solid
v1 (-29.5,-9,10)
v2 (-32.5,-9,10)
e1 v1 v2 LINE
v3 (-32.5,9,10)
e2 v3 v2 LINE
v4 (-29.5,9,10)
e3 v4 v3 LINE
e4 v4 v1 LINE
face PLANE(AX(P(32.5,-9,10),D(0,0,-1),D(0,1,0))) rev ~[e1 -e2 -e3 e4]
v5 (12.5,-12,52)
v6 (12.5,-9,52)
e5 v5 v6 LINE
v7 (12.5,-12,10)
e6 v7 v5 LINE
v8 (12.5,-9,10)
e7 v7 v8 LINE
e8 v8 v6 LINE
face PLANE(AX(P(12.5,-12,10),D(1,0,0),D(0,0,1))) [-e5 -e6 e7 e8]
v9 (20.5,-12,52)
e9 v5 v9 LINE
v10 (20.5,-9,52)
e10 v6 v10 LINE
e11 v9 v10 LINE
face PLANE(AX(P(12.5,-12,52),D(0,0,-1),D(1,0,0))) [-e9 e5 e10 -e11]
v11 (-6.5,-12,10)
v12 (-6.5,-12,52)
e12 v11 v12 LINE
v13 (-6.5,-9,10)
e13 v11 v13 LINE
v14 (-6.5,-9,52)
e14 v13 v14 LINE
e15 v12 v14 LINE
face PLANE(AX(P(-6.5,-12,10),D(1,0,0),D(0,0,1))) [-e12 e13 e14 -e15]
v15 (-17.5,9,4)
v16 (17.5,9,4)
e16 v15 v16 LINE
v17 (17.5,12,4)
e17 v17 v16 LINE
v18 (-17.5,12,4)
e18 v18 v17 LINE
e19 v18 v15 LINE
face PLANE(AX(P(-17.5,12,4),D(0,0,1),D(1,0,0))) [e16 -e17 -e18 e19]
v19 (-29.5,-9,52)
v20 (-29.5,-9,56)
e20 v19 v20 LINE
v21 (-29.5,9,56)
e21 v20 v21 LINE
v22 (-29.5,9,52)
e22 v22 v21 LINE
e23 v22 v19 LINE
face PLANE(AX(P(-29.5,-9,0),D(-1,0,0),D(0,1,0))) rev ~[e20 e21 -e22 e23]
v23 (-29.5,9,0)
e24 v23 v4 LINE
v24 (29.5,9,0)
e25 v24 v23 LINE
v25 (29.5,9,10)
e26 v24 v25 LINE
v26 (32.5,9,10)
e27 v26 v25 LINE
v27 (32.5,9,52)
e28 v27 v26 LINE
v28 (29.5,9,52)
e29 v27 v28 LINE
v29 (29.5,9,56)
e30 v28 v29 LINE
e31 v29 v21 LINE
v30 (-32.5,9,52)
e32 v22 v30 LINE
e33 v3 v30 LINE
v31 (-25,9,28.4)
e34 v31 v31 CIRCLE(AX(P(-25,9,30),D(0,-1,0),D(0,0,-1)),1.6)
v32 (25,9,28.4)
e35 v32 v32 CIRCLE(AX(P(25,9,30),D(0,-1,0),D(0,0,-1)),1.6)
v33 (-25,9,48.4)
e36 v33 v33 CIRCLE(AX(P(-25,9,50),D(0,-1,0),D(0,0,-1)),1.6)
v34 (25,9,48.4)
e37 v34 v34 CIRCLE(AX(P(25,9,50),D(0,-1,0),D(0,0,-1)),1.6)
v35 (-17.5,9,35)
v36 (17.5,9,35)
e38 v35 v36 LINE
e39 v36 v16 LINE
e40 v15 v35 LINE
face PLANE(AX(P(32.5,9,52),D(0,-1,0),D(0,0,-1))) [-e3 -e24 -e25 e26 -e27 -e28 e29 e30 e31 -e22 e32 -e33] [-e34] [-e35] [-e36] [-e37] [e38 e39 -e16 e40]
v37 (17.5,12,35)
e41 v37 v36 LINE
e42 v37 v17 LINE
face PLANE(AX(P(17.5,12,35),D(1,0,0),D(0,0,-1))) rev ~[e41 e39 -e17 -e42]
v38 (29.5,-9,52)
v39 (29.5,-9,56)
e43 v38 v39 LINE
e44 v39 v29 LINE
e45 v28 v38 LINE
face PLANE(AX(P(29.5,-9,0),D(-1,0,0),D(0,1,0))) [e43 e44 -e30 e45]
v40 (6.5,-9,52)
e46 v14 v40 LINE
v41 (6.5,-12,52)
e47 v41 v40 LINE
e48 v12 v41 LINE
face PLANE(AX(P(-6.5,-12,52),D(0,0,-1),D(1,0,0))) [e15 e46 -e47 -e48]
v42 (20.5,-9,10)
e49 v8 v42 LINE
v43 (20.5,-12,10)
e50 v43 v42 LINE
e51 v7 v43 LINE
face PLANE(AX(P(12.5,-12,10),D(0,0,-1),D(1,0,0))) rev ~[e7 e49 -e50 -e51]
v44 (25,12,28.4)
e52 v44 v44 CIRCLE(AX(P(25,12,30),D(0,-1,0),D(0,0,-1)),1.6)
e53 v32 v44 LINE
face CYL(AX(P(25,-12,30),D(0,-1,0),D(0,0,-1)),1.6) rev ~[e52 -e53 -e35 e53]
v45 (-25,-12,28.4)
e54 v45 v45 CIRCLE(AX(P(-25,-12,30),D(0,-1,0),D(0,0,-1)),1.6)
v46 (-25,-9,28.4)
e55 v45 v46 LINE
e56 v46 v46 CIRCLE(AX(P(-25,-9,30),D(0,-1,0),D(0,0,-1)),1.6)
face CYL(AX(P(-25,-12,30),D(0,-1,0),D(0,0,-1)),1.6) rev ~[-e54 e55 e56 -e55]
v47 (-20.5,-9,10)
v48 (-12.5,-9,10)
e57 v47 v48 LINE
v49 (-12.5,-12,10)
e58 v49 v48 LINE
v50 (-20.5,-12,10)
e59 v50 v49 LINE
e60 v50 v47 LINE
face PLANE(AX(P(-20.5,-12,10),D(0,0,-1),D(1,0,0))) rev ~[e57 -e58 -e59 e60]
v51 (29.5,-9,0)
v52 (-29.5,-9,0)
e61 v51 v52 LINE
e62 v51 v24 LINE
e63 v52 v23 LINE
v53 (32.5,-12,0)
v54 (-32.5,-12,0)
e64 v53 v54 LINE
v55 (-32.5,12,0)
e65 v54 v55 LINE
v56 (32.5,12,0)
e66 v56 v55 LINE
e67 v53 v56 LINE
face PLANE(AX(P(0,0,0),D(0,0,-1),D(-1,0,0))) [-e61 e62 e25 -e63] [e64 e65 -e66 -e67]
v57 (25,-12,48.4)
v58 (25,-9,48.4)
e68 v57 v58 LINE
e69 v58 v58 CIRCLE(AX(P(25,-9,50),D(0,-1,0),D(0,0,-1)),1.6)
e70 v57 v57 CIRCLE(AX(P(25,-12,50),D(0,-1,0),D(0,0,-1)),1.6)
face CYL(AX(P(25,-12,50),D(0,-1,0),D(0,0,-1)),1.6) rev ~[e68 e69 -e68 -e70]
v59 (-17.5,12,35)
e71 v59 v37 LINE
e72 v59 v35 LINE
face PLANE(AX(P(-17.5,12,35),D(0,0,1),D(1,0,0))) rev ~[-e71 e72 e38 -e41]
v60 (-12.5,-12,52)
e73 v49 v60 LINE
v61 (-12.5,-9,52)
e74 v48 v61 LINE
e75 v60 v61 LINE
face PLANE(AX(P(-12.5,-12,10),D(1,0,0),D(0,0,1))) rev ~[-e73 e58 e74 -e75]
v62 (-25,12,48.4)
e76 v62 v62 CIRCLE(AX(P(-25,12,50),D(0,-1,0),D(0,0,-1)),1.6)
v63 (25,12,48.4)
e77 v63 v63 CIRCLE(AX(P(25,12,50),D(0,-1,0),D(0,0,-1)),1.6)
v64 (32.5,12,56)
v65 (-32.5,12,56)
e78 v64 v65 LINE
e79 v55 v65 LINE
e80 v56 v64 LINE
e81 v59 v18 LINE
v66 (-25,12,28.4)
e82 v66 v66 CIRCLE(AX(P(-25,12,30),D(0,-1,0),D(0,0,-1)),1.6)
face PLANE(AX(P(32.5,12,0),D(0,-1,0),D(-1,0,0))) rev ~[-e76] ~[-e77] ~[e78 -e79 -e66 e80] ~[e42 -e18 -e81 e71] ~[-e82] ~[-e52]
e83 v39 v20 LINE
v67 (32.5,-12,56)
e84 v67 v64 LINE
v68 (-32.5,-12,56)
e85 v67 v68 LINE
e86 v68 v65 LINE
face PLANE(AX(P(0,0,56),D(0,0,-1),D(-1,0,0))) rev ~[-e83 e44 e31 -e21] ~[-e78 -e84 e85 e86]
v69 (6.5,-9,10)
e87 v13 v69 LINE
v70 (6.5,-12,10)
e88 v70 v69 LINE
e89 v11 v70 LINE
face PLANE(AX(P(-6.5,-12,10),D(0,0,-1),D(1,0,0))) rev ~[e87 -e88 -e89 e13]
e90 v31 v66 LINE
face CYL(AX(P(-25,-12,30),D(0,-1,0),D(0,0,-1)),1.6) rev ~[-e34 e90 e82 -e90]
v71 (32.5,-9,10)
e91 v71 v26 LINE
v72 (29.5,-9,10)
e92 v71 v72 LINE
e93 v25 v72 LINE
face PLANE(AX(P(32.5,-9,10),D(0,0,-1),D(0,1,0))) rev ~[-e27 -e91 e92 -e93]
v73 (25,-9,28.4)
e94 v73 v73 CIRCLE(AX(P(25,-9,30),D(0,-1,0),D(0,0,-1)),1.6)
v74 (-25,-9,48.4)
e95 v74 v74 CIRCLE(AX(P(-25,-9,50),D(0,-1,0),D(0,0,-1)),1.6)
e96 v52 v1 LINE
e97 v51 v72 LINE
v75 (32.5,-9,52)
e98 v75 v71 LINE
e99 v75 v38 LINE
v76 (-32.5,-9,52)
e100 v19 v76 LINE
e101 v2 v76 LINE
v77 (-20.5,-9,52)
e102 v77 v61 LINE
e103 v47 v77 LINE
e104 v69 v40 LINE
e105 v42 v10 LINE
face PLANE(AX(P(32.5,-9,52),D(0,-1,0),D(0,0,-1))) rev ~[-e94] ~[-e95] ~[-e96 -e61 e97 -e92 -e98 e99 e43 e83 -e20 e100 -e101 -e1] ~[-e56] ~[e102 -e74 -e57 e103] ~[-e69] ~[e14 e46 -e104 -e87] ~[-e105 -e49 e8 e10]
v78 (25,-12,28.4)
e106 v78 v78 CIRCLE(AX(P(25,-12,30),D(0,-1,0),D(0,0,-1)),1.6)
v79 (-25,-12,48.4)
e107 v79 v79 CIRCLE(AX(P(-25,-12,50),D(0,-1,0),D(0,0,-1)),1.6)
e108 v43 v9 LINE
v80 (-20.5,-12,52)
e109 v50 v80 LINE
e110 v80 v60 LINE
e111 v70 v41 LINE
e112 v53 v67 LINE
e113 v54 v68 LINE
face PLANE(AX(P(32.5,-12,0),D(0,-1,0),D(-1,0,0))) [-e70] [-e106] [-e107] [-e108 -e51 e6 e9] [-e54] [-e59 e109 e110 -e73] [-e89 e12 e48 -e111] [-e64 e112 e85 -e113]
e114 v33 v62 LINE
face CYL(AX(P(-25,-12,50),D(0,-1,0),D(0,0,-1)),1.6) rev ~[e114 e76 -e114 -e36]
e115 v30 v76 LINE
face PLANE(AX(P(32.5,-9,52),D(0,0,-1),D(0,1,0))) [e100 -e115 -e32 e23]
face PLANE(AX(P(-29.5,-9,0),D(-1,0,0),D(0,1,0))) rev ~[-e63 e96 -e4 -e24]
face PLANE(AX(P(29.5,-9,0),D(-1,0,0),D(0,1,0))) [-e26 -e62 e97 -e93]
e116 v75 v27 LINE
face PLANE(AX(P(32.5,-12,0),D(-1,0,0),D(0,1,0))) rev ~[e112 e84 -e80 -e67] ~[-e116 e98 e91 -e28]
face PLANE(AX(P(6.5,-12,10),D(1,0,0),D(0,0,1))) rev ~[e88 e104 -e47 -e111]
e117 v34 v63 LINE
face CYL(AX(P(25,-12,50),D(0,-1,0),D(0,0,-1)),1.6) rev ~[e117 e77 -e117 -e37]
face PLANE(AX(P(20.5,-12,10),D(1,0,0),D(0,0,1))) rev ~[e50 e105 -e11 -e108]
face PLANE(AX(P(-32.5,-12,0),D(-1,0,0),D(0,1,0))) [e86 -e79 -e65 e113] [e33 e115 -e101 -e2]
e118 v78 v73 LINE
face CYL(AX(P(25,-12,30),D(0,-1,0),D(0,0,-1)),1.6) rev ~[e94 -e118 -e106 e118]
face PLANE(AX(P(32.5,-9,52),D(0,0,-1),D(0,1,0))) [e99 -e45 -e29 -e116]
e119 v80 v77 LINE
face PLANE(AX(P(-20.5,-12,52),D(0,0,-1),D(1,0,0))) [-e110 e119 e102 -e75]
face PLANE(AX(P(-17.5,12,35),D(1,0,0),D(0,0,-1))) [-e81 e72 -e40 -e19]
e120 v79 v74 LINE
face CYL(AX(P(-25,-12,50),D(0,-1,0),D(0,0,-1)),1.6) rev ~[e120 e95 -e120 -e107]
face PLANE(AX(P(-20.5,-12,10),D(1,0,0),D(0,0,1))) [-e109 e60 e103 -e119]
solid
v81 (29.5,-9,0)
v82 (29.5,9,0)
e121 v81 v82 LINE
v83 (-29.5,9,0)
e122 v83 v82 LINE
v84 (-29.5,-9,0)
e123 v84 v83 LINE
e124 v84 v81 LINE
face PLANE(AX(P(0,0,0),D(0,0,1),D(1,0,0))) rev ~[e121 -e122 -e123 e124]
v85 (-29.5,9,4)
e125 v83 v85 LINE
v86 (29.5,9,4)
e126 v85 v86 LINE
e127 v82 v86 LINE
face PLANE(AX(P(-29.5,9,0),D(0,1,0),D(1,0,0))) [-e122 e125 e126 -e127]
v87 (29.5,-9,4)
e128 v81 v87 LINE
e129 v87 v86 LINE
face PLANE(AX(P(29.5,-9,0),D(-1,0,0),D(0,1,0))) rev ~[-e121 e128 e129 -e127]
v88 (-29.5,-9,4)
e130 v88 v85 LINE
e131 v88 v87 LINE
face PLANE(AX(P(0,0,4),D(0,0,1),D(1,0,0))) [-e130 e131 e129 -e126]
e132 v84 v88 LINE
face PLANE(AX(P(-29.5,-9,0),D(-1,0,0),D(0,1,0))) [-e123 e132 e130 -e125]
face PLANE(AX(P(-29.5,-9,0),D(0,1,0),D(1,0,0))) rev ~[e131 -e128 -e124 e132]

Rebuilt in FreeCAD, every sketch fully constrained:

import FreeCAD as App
import Part
import Sketcher
from FreeCAD import Vector

doc = App.newDocument("Part")
body = doc.addObject("PartDesign::Body", "Body")

# Sketch on XY plane
sketch1 = body.newObject("Sketcher::SketchObject", "Sketch")
sketch1.AttachmentSupport = (doc.getObject("XY_Plane"), [""])
sketch1.MapMode = "FlatFace"
sketch1.addGeometry([
    Part.LineSegment(Vector(-30, 9, 0), Vector(-30, -9, 0)),
    Part.LineSegment(Vector(-30, -9, 0), Vector(30, -9, 0)),
    Part.LineSegment(Vector(30, -9, 0), Vector(30, 9, 0)),
    Part.LineSegment(Vector(30, 9, 0), Vector(-30, 9, 0)),
], False)
sketch1.addConstraint([
    Sketcher.Constraint("Coincident", 0, 2, 1, 1),
    Sketcher.Constraint("Coincident", 1, 2, 2, 1),
    Sketcher.Constraint("Coincident", 2, 2, 3, 1),
    Sketcher.Constraint("Coincident", 3, 2, 0, 1),
    Sketcher.Constraint("Vertical", 0),
    Sketcher.Constraint("Horizontal", 1),
    Sketcher.Constraint("Vertical", 2),
    Sketcher.Constraint("Horizontal", 3),
    Sketcher.Constraint("Symmetric", 0, 2, 2, 2, -1, 1),
    Sketcher.Constraint("DistanceX", 1, 1, 1, 2, 59.0),
    Sketcher.Constraint("DistanceY", 0, 2, 0, 1, 18.0),
])
pad1 = body.newObject("PartDesign::Pad", "Pad")
pad1.Profile = sketch1
pad1.Length = 4
body2 = doc.addObject("PartDesign::Body", "Body001")

# Sketch on XY plane
sketch2 = body2.newObject("Sketcher::SketchObject", "Sketch001")
sketch2.AttachmentSupport = (doc.getObject("XY_Plane001"), [""])
sketch2.MapMode = "FlatFace"
sketch2.addGeometry([
    Part.LineSegment(Vector(32, 12, 0), Vector(32, -12, 0)),  # 0
    Part.LineSegment(Vector(32, -12, 0), Vector(-32, -12, 0)),  # 1
    Part.LineSegment(Vector(-32, -12, 0), Vector(-32, 12, 0)),  # 2
    Part.LineSegment(Vector(-32, 12, 0), Vector(32, 12, 0)),  # 3
    Part.LineSegment(Vector(-30, -9, 0), Vector(30, -9, 0)),  # 4
    Part.LineSegment(Vector(30, -9, 0), Vector(30, 9, 0)),  # 5
    Part.LineSegment(Vector(30, 9, 0), Vector(-30, 9, 0)),  # 6
    Part.LineSegment(Vector(-30, 9, 0), Vector(-30, -9, 0)),  # 7
], False)
sketch2.addConstraint([
    Sketcher.Constraint("Coincident", 0, 2, 1, 1),
    Sketcher.Constraint("Coincident", 1, 2, 2, 1),
    Sketcher.Constraint("Coincident", 2, 2, 3, 1),
    Sketcher.Constraint("Coincident", 3, 2, 0, 1),
    Sketcher.Constraint("Coincident", 4, 2, 5, 1),
    Sketcher.Constraint("Coincident", 5, 2, 6, 1),
    Sketcher.Constraint("Coincident", 6, 2, 7, 1),
    Sketcher.Constraint("Coincident", 7, 2, 4, 1),
    Sketcher.Constraint("Vertical", 0),
    Sketcher.Constraint("Horizontal", 1),
    Sketcher.Constraint("Vertical", 2),
    Sketcher.Constraint("Horizontal", 3),
    Sketcher.Constraint("Horizontal", 4),
    Sketcher.Constraint("Vertical", 5),
    Sketcher.Constraint("Horizontal", 6),
    Sketcher.Constraint("Vertical", 7),
    Sketcher.Constraint("Symmetric", 0, 2, 2, 2, -1, 1),
    Sketcher.Constraint("Symmetric", 4, 2, 6, 2, -1, 1),
    Sketcher.Constraint("DistanceX", 1, 2, 1, 1, 65.0),
    Sketcher.Constraint("DistanceX", 4, 1, 4, 2, 59.0),
    Sketcher.Constraint("DistanceY", 0, 2, 0, 1, 24.0),
    Sketcher.Constraint("DistanceY", 5, 1, 5, 2, 18.0),
])
pad2 = body2.newObject("PartDesign::Pad", "Pad001")
pad2.Profile = sketch2
pad2.Length = 56

# Sketch on XZ plane
sketch3 = body2.newObject("Sketcher::SketchObject", "Sketch002")
sketch3.AttachmentSupport = (doc.getObject("XZ_Plane001"), [""])
sketch3.MapMode = "FlatFace"
sketch3.AttachmentOffset = App.Placement(Vector(0, 0, -12), App.Rotation())
sketch3.addGeometry([
    Part.LineSegment(Vector(-18, 4, 0), Vector(-18, 35, 0)),
    Part.LineSegment(Vector(-18, 35, 0), Vector(18, 35, 0)),
    Part.LineSegment(Vector(18, 35, 0), Vector(18, 4, 0)),
    Part.LineSegment(Vector(18, 4, 0), Vector(-18, 4, 0)),
], False)
sketch3.addConstraint([
    Sketcher.Constraint("Coincident", 0, 2, 1, 1),
    Sketcher.Constraint("Coincident", 1, 2, 2, 1),
    Sketcher.Constraint("Coincident", 2, 2, 3, 1),
    Sketcher.Constraint("Coincident", 3, 2, 0, 1),
    Sketcher.Constraint("Vertical", 0),
    Sketcher.Constraint("Horizontal", 1),
    Sketcher.Constraint("Vertical", 2),
    Sketcher.Constraint("Horizontal", 3),
    Sketcher.Constraint("DistanceX", 1, 1, 1, 2, 35.0),
    Sketcher.Constraint("DistanceY", 0, 1, 0, 2, 31.0),
    Sketcher.Constraint("DistanceY", -1, 1, 0, 2, 35.0),
    Sketcher.Constraint("DistanceX", 0, 2, -1, 1, 17.5),
])
pocket1 = body2.newObject("PartDesign::Pocket", "Pocket")
pocket1.Profile = sketch3
pocket1.Length = 3
pocket1.Reversed = True

# Sketch on XZ plane
sketch4 = body2.newObject("Sketcher::SketchObject", "Sketch003")
sketch4.AttachmentSupport = (doc.getObject("XZ_Plane001"), [""])
sketch4.MapMode = "FlatFace"
sketch4.AttachmentOffset = App.Placement(Vector(0, 0, 12), App.Rotation())
sketch4.addGeometry([
    Part.Circle(Vector(25, 50, 0), Vector(0, 0, 1), 1.6),
    Part.Circle(Vector(25, 30, 0), Vector(0, 0, 1), 1.6),
    Part.Circle(Vector(-25, 30, 0), Vector(0, 0, 1), 1.6),
    Part.Circle(Vector(-25, 50, 0), Vector(0, 0, 1), 1.6),
], False)
sketch4.addConstraint([
    Sketcher.Constraint("Equal", 0, 1),
    Sketcher.Constraint("Equal", 1, 2),
    Sketcher.Constraint("Equal", 2, 3),
    Sketcher.Constraint("Symmetric", 1, 3, 2, 3, -2),
    Sketcher.Constraint("Symmetric", 0, 3, 3, 3, -2),
    Sketcher.Constraint("Vertical", 0, 3, 1, 3),
    Sketcher.Constraint("Diameter", 0, 3.2),
    Sketcher.Constraint("DistanceX", -1, 1, 0, 3, 25.0),
    Sketcher.Constraint("DistanceY", -1, 1, 0, 3, 50.0),
    Sketcher.Constraint("DistanceY", -1, 1, 1, 3, 30.0),
])
pocket2 = body2.newObject("PartDesign::Pocket", "Pocket001")
pocket2.Profile = sketch4
pocket2.Type = "ThroughAll"

# Sketch on YZ plane
sketch5 = body2.newObject("Sketcher::SketchObject", "Sketch004")
sketch5.AttachmentSupport = (doc.getObject("YZ_Plane001"), [""])
sketch5.MapMode = "FlatFace"
sketch5.AttachmentOffset = App.Placement(Vector(0, 0, 32.5), App.Rotation())
sketch5.addGeometry([
    Part.LineSegment(Vector(9, 52, 0), Vector(-9, 52, 0)),
    Part.LineSegment(Vector(-9, 52, 0), Vector(-9, 10, 0)),
    Part.LineSegment(Vector(-9, 10, 0), Vector(9, 10, 0)),
    Part.LineSegment(Vector(9, 10, 0), Vector(9, 52, 0)),
], False)
sketch5.addConstraint([
    Sketcher.Constraint("Coincident", 0, 2, 1, 1),
    Sketcher.Constraint("Coincident", 1, 2, 2, 1),
    Sketcher.Constraint("Coincident", 2, 2, 3, 1),
    Sketcher.Constraint("Coincident", 3, 2, 0, 1),
    Sketcher.Constraint("Horizontal", 0),
    Sketcher.Constraint("Vertical", 1),
    Sketcher.Constraint("Horizontal", 2),
    Sketcher.Constraint("Vertical", 3),
    Sketcher.Constraint("DistanceX", 0, 2, 0, 1, 18.0),
    Sketcher.Constraint("DistanceY", 1, 2, 1, 1, 42.0),
    Sketcher.Constraint("DistanceX", 0, 2, -1, 1, 9.0),
    Sketcher.Constraint("DistanceY", -1, 1, 0, 2, 52.0),
])
pocket3 = body2.newObject("PartDesign::Pocket", "Pocket002")
pocket3.Profile = sketch5
pocket3.Type = "ThroughAll"

# Sketch on XZ plane
sketch6 = body2.newObject("Sketcher::SketchObject", "Sketch005")
sketch6.AttachmentSupport = (doc.getObject("XZ_Plane001"), [""])
sketch6.MapMode = "FlatFace"
sketch6.AttachmentOffset = App.Placement(Vector(0, 0, 12), App.Rotation())
sketch6.addGeometry([
    Part.LineSegment(Vector(-6, 52, 0), Vector(-6, 10, 0)),  # 0
    Part.LineSegment(Vector(-6, 10, 0), Vector(6, 10, 0)),  # 1
    Part.LineSegment(Vector(6, 10, 0), Vector(6, 52, 0)),  # 2
    Part.LineSegment(Vector(6, 52, 0), Vector(-6, 52, 0)),  # 3
    Part.LineSegment(Vector(12, 52, 0), Vector(12, 10, 0)),  # 4
    Part.LineSegment(Vector(12, 10, 0), Vector(20, 10, 0)),  # 5
    Part.LineSegment(Vector(20, 10, 0), Vector(20, 52, 0)),  # 6
    Part.LineSegment(Vector(20, 52, 0), Vector(12, 52, 0)),  # 7
    Part.LineSegment(Vector(-20, 52, 0), Vector(-20, 10, 0)),  # 8
    Part.LineSegment(Vector(-20, 10, 0), Vector(-12, 10, 0)),  # 9
    Part.LineSegment(Vector(-12, 10, 0), Vector(-12, 52, 0)),  # 10
    Part.LineSegment(Vector(-12, 52, 0), Vector(-20, 52, 0)),  # 11
], False)
sketch6.addConstraint([
    Sketcher.Constraint("Coincident", 0, 2, 1, 1),
    Sketcher.Constraint("Coincident", 1, 2, 2, 1),
    Sketcher.Constraint("Coincident", 2, 2, 3, 1),
    Sketcher.Constraint("Coincident", 3, 2, 0, 1),
    Sketcher.Constraint("Coincident", 4, 2, 5, 1),
    Sketcher.Constraint("Coincident", 5, 2, 6, 1),
    Sketcher.Constraint("Coincident", 6, 2, 7, 1),
    Sketcher.Constraint("Coincident", 7, 2, 4, 1),
    Sketcher.Constraint("Coincident", 8, 2, 9, 1),
    Sketcher.Constraint("Coincident", 9, 2, 10, 1),
    Sketcher.Constraint("Coincident", 10, 2, 11, 1),
    Sketcher.Constraint("Coincident", 11, 2, 8, 1),
    Sketcher.Constraint("Vertical", 0),
    Sketcher.Constraint("Horizontal", 1),
    Sketcher.Constraint("Vertical", 2),
    Sketcher.Constraint("Horizontal", 3),
    Sketcher.Constraint("Vertical", 4),
    Sketcher.Constraint("Horizontal", 5),
    Sketcher.Constraint("Vertical", 6),
    Sketcher.Constraint("Horizontal", 7),
    Sketcher.Constraint("Vertical", 8),
    Sketcher.Constraint("Horizontal", 9),
    Sketcher.Constraint("Vertical", 10),
    Sketcher.Constraint("Horizontal", 11),
    Sketcher.Constraint("Symmetric", 5, 2, 8, 2, -2),
    Sketcher.Constraint("Symmetric", 7, 2, 10, 2, -2),
    Sketcher.Constraint("Horizontal", 1, 2, 4, 2),
    Sketcher.Constraint("Horizontal", 3, 2, 6, 2),
    Sketcher.Constraint("DistanceX", 1, 1, 1, 2, 13.0),
    Sketcher.Constraint("DistanceX", 5, 1, 5, 2, 8.0),
    Sketcher.Constraint("DistanceY", 0, 2, 0, 1, 42.0),
    Sketcher.Constraint("DistanceY", -1, 1, 0, 2, 10.0),
    Sketcher.Constraint("DistanceX", 1, 2, 4, 2, 6.0),
    Sketcher.Constraint("DistanceX", 8, 2, 0, 2, 14.0),
])
pocket4 = body2.newObject("PartDesign::Pocket", "Pocket003")
pocket4.Profile = sketch6
pocket4.Length = 3

doc.recompute()
